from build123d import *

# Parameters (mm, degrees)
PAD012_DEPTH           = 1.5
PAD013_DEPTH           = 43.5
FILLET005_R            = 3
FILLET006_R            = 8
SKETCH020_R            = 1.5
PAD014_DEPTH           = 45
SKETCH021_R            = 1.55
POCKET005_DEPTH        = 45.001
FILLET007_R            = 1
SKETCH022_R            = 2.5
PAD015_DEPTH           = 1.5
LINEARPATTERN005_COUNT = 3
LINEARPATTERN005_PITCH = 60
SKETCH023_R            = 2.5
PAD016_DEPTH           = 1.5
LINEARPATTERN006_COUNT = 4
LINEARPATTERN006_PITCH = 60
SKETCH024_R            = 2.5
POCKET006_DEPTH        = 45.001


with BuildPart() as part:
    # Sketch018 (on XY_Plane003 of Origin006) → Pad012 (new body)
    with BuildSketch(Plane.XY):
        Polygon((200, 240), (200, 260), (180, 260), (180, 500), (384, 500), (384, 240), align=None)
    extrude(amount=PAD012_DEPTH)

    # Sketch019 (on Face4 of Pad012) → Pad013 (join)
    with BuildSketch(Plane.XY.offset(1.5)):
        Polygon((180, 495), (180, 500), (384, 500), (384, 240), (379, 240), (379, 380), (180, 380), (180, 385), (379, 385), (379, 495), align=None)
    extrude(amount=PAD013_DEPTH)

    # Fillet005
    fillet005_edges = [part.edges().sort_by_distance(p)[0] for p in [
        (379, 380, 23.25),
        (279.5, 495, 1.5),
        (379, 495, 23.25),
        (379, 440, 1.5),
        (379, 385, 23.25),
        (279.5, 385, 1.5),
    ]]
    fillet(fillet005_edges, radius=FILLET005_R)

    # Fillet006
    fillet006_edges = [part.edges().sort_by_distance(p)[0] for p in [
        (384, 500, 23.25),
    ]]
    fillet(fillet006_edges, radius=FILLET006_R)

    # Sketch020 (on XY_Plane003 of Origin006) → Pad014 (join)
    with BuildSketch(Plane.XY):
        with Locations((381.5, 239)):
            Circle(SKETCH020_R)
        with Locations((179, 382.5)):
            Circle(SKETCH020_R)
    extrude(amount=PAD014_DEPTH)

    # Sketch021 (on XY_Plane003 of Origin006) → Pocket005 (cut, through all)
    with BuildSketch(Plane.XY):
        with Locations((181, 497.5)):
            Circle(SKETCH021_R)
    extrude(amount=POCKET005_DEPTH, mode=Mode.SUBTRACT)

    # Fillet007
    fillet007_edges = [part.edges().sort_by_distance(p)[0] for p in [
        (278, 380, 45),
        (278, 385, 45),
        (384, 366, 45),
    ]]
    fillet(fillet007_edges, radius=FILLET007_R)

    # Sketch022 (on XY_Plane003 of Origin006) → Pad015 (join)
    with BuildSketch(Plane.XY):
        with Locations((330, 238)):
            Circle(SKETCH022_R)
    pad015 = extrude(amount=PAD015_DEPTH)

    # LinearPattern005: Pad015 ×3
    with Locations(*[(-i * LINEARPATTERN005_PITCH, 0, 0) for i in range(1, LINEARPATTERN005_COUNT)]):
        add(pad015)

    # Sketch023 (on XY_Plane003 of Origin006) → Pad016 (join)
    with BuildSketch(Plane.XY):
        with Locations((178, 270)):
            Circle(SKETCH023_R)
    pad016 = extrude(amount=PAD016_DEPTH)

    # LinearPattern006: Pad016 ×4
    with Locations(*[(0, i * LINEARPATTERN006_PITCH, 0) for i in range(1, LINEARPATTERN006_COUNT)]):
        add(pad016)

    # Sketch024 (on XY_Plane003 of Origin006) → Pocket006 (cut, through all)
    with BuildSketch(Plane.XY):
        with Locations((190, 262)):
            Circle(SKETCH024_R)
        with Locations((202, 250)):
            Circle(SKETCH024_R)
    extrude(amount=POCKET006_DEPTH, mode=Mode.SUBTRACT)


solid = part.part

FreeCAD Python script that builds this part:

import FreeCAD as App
import Part
import Sketcher
from FreeCAD import Vector


def edges_at(feature, points):
    """Names of the edges that pass closest to the given points."""
    edges = feature.Shape.Edges
    near = lambda p: min(range(len(edges)), key=lambda i: edges[i].distToShape(Part.Vertex(*p))[0])
    return sorted({f"Edge{near(p) + 1}" for p in points})


def add_polygon(sketch, points):
    """Adds a closed chain of lines whose ends are joined by coincident constraints."""
    first, n = sketch.GeometryCount, len(points)
    for a, b in zip(points, points[1:] + points[:1]):
        sketch.addGeometry(Part.LineSegment(App.Vector(*a, 0), App.Vector(*b, 0)), False)
    for i in range(n):
        sketch.addConstraint(Sketcher.Constraint("Coincident", first + i, 2, first + (i + 1) % n, 1))

doc = App.newDocument("Part")
body = doc.addObject("PartDesign::Body", "Body")

# Sketch on XY plane
sketch1 = body.newObject("Sketcher::SketchObject", "Sketch")
sketch1.AttachmentSupport = (doc.getObject("XY_Plane"), [""])
sketch1.MapMode = "FlatFace"
add_polygon(sketch1, [(200, 260), (200, 240), (384, 240), (384, 500), (180, 500), (180, 260)])  # lines 0-5
sketch1.addConstraint([
    Sketcher.Constraint("Vertical", 0),
    Sketcher.Constraint("Horizontal", 1),
    Sketcher.Constraint("Vertical", 2),
    Sketcher.Constraint("Horizontal", 3),
    Sketcher.Constraint("Vertical", 4),
    Sketcher.Constraint("Horizontal", 5),
    Sketcher.Constraint("Equal", 5, 0),
    Sketcher.Constraint("DistanceX", 1, 1, 1, 2, 184.0),
    Sketcher.Constraint("DistanceX", 3, 2, 3, 1, 204.0),
    Sketcher.Constraint("DistanceY", 2, 1, 2, 2, 260.0),
    Sketcher.Constraint("DistanceX", -1, 1, 0, 2, 200.0),
    Sketcher.Constraint("DistanceY", -1, 1, 0, 2, 240.0),
])
pad1 = body.newObject("PartDesign::Pad", "Pad")
pad1.Profile = sketch1
pad1.Length = 1.5

# Sketch on XY plane
sketch2 = body.newObject("Sketcher::SketchObject", "Sketch001")
sketch2.AttachmentSupport = (doc.getObject("XY_Plane"), [""])
sketch2.MapMode = "FlatFace"
sketch2.AttachmentOffset = App.Placement(Vector(0, 0, 1.5), App.Rotation())
add_polygon(sketch2, [(180, 500), (180, 495), (379, 495), (379, 385), (180, 385), (180, 380), (379, 380), (379, 240), (384, 240), (384, 500)])  # lines 0-9
sketch2.addConstraint([
    Sketcher.Constraint("Vertical", 0),
    Sketcher.Constraint("Horizontal", 1),
    Sketcher.Constraint("Vertical", 2),
    Sketcher.Constraint("Horizontal", 3),
    Sketcher.Constraint("Vertical", 4),
    Sketcher.Constraint("Horizontal", 5),
    Sketcher.Constraint("Vertical", 6),
    Sketcher.Constraint("Horizontal", 7),
    Sketcher.Constraint("Vertical", 8),
    Sketcher.Constraint("Horizontal", 9),
    Sketcher.Constraint("Vertical", 0, 2, 3, 2),
    Sketcher.Constraint("Vertical", 2, 2, 5, 2),
    Sketcher.Constraint("Equal", 7, 0),
    Sketcher.Constraint("Equal", 0, 4),
    Sketcher.Constraint("DistanceX", 1, 1, 1, 2, 199.0),
    Sketcher.Constraint("DistanceX", 7, 1, 7, 2, 5.0),
    Sketcher.Constraint("DistanceY", 2, 2, 2, 1, 110.0),
    Sketcher.Constraint("DistanceY", 6, 2, 6, 1, 140.0),
    Sketcher.Constraint("DistanceX", -1, 1, 0, 2, 180.0),
    Sketcher.Constraint("DistanceY", -1, 1, 0, 2, 495.0),
])
pad2 = body.newObject("PartDesign::Pad", "Pad001")
pad2.Profile = sketch2
pad2.Length = 43.5
doc.recompute()

fillet = body.newObject("PartDesign::Fillet", "Fillet")
fillet.Base = (pad2, edges_at(pad2, [
    (379, 380, 23.25),
    (279.5, 495, 1.5),
    (379, 495, 23.25),
    (379, 440, 1.5),
    (379, 385, 23.25),
    (279.5, 385, 1.5),
]))
fillet.Radius = 3
doc.recompute()

fillet2 = body.newObject("PartDesign::Fillet", "Fillet001")
fillet2.Base = (fillet, edges_at(fillet, [(384, 500, 22.5)]))
fillet2.Radius = 8

# Sketch on XY plane
sketch3 = body.newObject("Sketcher::SketchObject", "Sketch002")
sketch3.AttachmentSupport = (doc.getObject("XY_Plane"), [""])
sketch3.MapMode = "FlatFace"
sketch3.addGeometry([
    Part.Circle(Vector(381.5, 239, 0), Vector(0, 0, 1), 1.5),
    Part.Circle(Vector(179, 382.5, 0), Vector(0, 0, 1), 1.5),
], False)
sketch3.addConstraint([
    Sketcher.Constraint("Equal", 0, 1),
    Sketcher.Constraint("Diameter", 0, 3.0),
    Sketcher.Constraint("DistanceY", -1, 1, 0, 3, 239.0),
    Sketcher.Constraint("DistanceX", -1, 1, 1, 3, 179.0),
    Sketcher.Constraint("DistanceX", -1, 1, 0, 3, 381.5),
    Sketcher.Constraint("DistanceY", -1, 1, 1, 3, 382.5),
])
pad3 = body.newObject("PartDesign::Pad", "Pad002")
pad3.Profile = sketch3
pad3.Length = 45

# Sketch on XY plane
sketch4 = body.newObject("Sketcher::SketchObject", "Sketch003")
sketch4.AttachmentSupport = (doc.getObject("XY_Plane"), [""])
sketch4.MapMode = "FlatFace"
sketch4.addGeometry(Part.Circle(Vector(181, 497.5, 0), Vector(0, 0, 1), 1.6), False)
sketch4.addConstraint([
    Sketcher.Constraint("Diameter", 0, 3.1),
    Sketcher.Constraint("DistanceX", -1, 1, 0, 3, 181.0),
    Sketcher.Constraint("DistanceY", -1, 1, 0, 3, 497.5),
])
pocket1 = body.newObject("PartDesign::Pocket", "Pocket")
pocket1.Profile = sketch4
pocket1.Type = "ThroughAll"
pocket1.Reversed = True
doc.recompute()

fillet3 = body.newObject("PartDesign::Fillet", "Fillet002")
fillet3.Base = (pocket1, edges_at(pocket1, [(278, 380, 45), (278, 385, 45), (384, 366, 45)]))
fillet3.Radius = 1

# Sketch on XY plane
sketch5 = body.newObject("Sketcher::SketchObject", "Sketch004")
sketch5.AttachmentSupport = (doc.getObject("XY_Plane"), [""])
sketch5.MapMode = "FlatFace"
sketch5.addGeometry(Part.Circle(Vector(330, 238, 0), Vector(0, 0, 1), 2.5), False)
sketch5.addConstraint([
    Sketcher.Constraint("Diameter", 0, 5.0),
    Sketcher.Constraint("DistanceX", -1, 1, 0, 3, 330.0),
    Sketcher.Constraint("DistanceY", -1, 1, 0, 3, 238.0),
])
pad4 = body.newObject("PartDesign::Pad", "Pad003")
pad4.Profile = sketch5
pad4.Length = 1.5
doc.recompute()

linearpattern = body.newObject("PartDesign::LinearPattern", "LinearPattern")
linearpattern.Originals = [pad4]
linearpattern.Direction = (doc.getObject("X_Axis"), [""])
linearpattern.Mode = "offset"
linearpattern.Offset = 60
linearpattern.Occurrences = 3
linearpattern.Reversed = True
body.Tip = linearpattern

# Sketch on XY plane
sketch6 = body.newObject("Sketcher::SketchObject", "Sketch005")
sketch6.AttachmentSupport = (doc.getObject("XY_Plane"), [""])
sketch6.MapMode = "FlatFace"
sketch6.addGeometry(Part.Circle(Vector(178, 270, 0), Vector(0, 0, 1), 2.5), False)
sketch6.addConstraint([
    Sketcher.Constraint("Diameter", 0, 5.0),
    Sketcher.Constraint("DistanceX", -1, 1, 0, 3, 178.0),
    Sketcher.Constraint("DistanceY", -1, 1, 0, 3, 270.0),
])
pad5 = body.newObject("PartDesign::Pad", "Pad004")
pad5.Profile = sketch6
pad5.Length = 1.5
doc.recompute()

linearpattern2 = body.newObject("PartDesign::LinearPattern", "LinearPattern001")
linearpattern2.Originals = [pad5]
linearpattern2.Direction = (doc.getObject("Y_Axis"), [""])
linearpattern2.Mode = "offset"
linearpattern2.Offset = 60
linearpattern2.Occurrences = 4
body.Tip = linearpattern2

# Sketch on XY plane
sketch7 = body.newObject("Sketcher::SketchObject", "Sketch006")
sketch7.AttachmentSupport = (doc.getObject("XY_Plane"), [""])
sketch7.MapMode = "FlatFace"
sketch7.addGeometry([
    Part.Circle(Vector(190, 262, 0), Vector(0, 0, 1), 2.5),
    Part.Circle(Vector(202, 250, 0), Vector(0, 0, 1), 2.5),
], False)
sketch7.addConstraint([
    Sketcher.Constraint("Equal", 0, 1),
    Sketcher.Constraint("Diameter", 0, 5.0),
    Sketcher.Constraint("DistanceX", -1, 1, 0, 3, 190.0),
    Sketcher.Constraint("DistanceY", -1, 1, 0, 3, 262.0),
    Sketcher.Constraint("DistanceX", -1, 1, 1, 3, 202.0),
    Sketcher.Constraint("DistanceY", -1, 1, 1, 3, 250.0),
])
pocket2 = body.newObject("PartDesign::Pocket", "Pocket001")
pocket2.Profile = sketch7
pocket2.Type = "ThroughAll"
pocket2.Reversed = True

doc.recompute()
